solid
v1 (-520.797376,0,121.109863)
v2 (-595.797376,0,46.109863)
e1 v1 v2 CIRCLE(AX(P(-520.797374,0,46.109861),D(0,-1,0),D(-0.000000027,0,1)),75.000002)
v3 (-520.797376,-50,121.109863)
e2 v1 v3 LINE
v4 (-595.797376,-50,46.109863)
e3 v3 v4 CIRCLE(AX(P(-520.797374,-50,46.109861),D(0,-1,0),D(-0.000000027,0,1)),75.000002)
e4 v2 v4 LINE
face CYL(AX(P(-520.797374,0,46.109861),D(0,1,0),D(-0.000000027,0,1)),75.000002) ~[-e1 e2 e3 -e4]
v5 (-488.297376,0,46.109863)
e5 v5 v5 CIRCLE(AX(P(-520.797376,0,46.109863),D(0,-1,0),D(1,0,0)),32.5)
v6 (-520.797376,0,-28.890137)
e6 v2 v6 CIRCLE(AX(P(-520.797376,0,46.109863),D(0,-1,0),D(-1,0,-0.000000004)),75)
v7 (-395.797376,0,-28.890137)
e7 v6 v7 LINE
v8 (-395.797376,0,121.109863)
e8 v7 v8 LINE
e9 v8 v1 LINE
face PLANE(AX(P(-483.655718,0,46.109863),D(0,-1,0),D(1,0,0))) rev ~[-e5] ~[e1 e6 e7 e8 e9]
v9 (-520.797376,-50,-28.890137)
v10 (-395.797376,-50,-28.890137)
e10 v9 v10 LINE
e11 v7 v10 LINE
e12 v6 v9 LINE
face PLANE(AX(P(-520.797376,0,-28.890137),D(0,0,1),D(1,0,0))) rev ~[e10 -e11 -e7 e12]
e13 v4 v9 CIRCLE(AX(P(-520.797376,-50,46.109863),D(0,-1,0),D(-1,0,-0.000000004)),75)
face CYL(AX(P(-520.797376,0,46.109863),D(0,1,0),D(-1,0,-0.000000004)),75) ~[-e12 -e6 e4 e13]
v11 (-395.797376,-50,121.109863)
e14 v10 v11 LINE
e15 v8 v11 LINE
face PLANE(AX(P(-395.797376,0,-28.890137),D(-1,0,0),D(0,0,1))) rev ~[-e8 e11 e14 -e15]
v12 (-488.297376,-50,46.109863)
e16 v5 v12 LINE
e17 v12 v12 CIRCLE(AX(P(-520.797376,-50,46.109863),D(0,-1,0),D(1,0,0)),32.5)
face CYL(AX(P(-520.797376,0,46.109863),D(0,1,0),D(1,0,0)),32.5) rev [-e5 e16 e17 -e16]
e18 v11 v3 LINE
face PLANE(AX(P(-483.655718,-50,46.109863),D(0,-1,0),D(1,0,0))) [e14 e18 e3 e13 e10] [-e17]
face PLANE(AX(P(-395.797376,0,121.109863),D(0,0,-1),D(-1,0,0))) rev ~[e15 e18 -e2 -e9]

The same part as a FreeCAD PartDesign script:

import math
import FreeCAD as App
import Part
import Sketcher

V = App.Vector

doc = App.newDocument("Part")
body = doc.addObject("PartDesign::Body", "Body")

# Sketch on XZ plane
sketch1 = doc.addObject("Sketcher::SketchObject", "Sketch")
body.addObject(sketch1)
sketch1.AttachmentSupport = (doc.XZ_Plane, [""])
sketch1.MapMode = "FlatFace"
sketch1.addGeometry([
    Part.LineSegment(V(-396, 121, 0), V(-521, 121, 0)),  # 0
    Part.ArcOfCircle(Part.Circle(V(-521, 46, 0), V(0, 0, 1), 75), math.radians(90), math.radians(180)),  # 1
    Part.ArcOfCircle(Part.Circle(V(-521, 46, 0), V(0, 0, 1), 75), math.radians(-180), math.radians(-90)),  # 2
    Part.LineSegment(V(-521, -29, 0), V(-396, -29, 0)),  # 3
    Part.LineSegment(V(-396, -29, 0), V(-396, 121, 0)),  # 4
    Part.Circle(V(-521, 46, 0), V(0, 0, 1), 32),  # 5
], False)
sketch1.addConstraint([
    Sketcher.Constraint("Tangent", 0, 2, 1, 1),
    Sketcher.Constraint("Tangent", 1, 2, 2, 1),
    Sketcher.Constraint("Tangent", 2, 2, 3, 1),
    Sketcher.Constraint("Coincident", 3, 2, 4, 1),
    Sketcher.Constraint("Coincident", 4, 2, 0, 1),
    Sketcher.Constraint("Horizontal", 0),
    Sketcher.Constraint("Horizontal", 3),
    Sketcher.Constraint("Vertical", 4),
    Sketcher.Constraint("Coincident", 5, 3, 1, 3),
    Sketcher.Constraint("Equal", 1, 2),
    Sketcher.Constraint("Horizontal", 5, 3, 1, 2),
    Sketcher.Constraint("Diameter", 5, 65.0),
    Sketcher.Constraint("Radius", 2, 75.0),
    Sketcher.Constraint("DistanceX", 0, 2, 0, 1, 125.0),
    Sketcher.Constraint("DistanceY", -1, 1, 1, 3, 46.109861),
    Sketcher.Constraint("DistanceX", 1, 3, -1, 1, 520.797374),
])
pad1 = doc.addObject("PartDesign::Pad", "Pad")
body.addObject(pad1)
pad1.Profile = sketch1
pad1.Length = 50

doc.recompute()
